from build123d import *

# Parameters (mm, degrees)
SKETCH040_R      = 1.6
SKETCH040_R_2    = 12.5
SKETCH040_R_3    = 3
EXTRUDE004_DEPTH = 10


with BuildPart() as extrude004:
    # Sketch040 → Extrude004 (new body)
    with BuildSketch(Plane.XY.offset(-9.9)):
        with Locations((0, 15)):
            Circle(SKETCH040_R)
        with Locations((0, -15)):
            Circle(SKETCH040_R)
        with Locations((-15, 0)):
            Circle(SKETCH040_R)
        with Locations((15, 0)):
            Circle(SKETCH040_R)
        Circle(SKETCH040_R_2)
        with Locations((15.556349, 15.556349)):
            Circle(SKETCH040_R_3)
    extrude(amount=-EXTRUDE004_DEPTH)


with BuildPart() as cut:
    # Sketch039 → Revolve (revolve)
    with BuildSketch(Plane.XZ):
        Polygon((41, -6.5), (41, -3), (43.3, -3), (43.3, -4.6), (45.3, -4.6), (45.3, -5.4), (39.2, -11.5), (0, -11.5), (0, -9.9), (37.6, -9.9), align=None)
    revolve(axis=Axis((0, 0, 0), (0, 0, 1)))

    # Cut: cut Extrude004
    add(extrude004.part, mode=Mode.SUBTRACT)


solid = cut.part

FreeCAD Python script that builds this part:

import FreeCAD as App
import Part
import Sketcher

V = App.Vector
Q = App.Units.Quantity

doc = App.newDocument("Part")
body = doc.addObject("PartDesign::Body", "Body")
body.AllowCompound = True

# Sketch on XY plane
sketch1 = doc.addObject("Sketcher::SketchObject", "Sketch")
body.addObject(sketch1)
sketch1.AttachmentSupport = (doc.XY_Plane, [""])
sketch1.MapMode = "FlatFace"
sketch1.AttachmentOffset = App.Placement(V(0, 0, -9.9), App.Rotation())
sketch1.addGeometry([
    Part.Circle(V(0, 15, 0), V(0, 0, 1), 1.6),  # 0
    Part.Circle(V(0, -15, 0), V(0, 0, 1), 1.6),  # 1
    Part.Circle(V(-15, 0, 0), V(0, 0, 1), 1.6),  # 2
    Part.Circle(V(15, 0, 0), V(0, 0, 1), 1.6),  # 3
    Part.Circle(V(0, 0, 0), V(0, 0, 1), 12.5),  # 4
    Part.Circle(V(15.6, 15.6, 0), V(0, 0, 1), 3),  # 5
], False)
sketch1.addConstraint([
    Sketcher.Constraint("Coincident", 4, 3, -1, 1),
    Sketcher.Constraint("Equal", 0, 1),
    Sketcher.Constraint("Equal", 1, 2),
    Sketcher.Constraint("Equal", 2, 3),
    Sketcher.Constraint("Symmetric", 0, 3, 1, 3, -1, 1),
    Sketcher.Constraint("Symmetric", 2, 3, 3, 3, -1, 1),
    Sketcher.Constraint("PointOnObject", 0, 3, -2),
    Sketcher.Constraint("PointOnObject", 2, 3, -1),
    Sketcher.Constraint("Diameter", 4, 25.0),
    Sketcher.Constraint("Diameter", 5, 6.0),
    Sketcher.Constraint("Diameter", 0, 3.2),
    Sketcher.Constraint("DistanceY", -1, 1, 0, 3, 15.0),
    Sketcher.Constraint("DistanceX", 2, 3, -1, 1, 15.0),
    Sketcher.Constraint("DistanceX", -1, 1, 5, 3, 15.556349),
    Sketcher.Constraint("DistanceY", -1, 1, 5, 3, 15.556349),
])
pad1 = doc.addObject("PartDesign::Pad", "Pad")
body.addObject(pad1)
pad1.Profile = sketch1
pad1.Length = 10
pad1.Reversed = True
body2 = doc.addObject("PartDesign::Body", "Body001")

# Sketch on XZ plane
sketch2 = doc.addObject("Sketcher::SketchObject", "Sketch001")
body2.addObject(sketch2)
sketch2.AttachmentSupport = (doc.getObject("XZ_Plane001"), [""])
sketch2.MapMode = "FlatFace"
sketch2.addGeometry([
    Part.LineSegment(V(41, -3, 0), V(41, -6.5, 0)),  # 0
    Part.LineSegment(V(41, -6.5, 0), V(37.6, -9.9, 0)),  # 1
    Part.LineSegment(V(37.6, -9.9, 0), V(0, -9.9, 0)),  # 2
    Part.LineSegment(V(0, -9.9, 0), V(0, -11.5, 0)),  # 3
    Part.LineSegment(V(0, -11.5, 0), V(39.2, -11.5, 0)),  # 4
    Part.LineSegment(V(39.2, -11.5, 0), V(45.3, -5.4, 0)),  # 5
    Part.LineSegment(V(45.3, -5.4, 0), V(45.3, -4.6, 0)),  # 6
    Part.LineSegment(V(45.3, -4.6, 0), V(43.3, -4.6, 0)),  # 7
    Part.LineSegment(V(43.3, -4.6, 0), V(43.3, -3, 0)),  # 8
    Part.LineSegment(V(43.3, -3, 0), V(41, -3, 0)),  # 9
], False)
sketch2.addConstraint([
    Sketcher.Constraint("Coincident", 0, 2, 1, 1),
    Sketcher.Constraint("Coincident", 1, 2, 2, 1),
    Sketcher.Constraint("Coincident", 2, 2, 3, 1),
    Sketcher.Constraint("Coincident", 3, 2, 4, 1),
    Sketcher.Constraint("Coincident", 4, 2, 5, 1),
    Sketcher.Constraint("Coincident", 5, 2, 6, 1),
    Sketcher.Constraint("Coincident", 6, 2, 7, 1),
    Sketcher.Constraint("Coincident", 7, 2, 8, 1),
    Sketcher.Constraint("Coincident", 8, 2, 9, 1),
    Sketcher.Constraint("Coincident", 9, 2, 0, 1),
    Sketcher.Constraint("Vertical", 0),
    Sketcher.Constraint("Horizontal", 2),
    Sketcher.Constraint("Vertical", 3),
    Sketcher.Constraint("Horizontal", 4),
    Sketcher.Constraint("Vertical", 6),
    Sketcher.Constraint("Horizontal", 7),
    Sketcher.Constraint("Vertical", 8),
    Sketcher.Constraint("Horizontal", 9),
    Sketcher.Constraint("PointOnObject", 2, 2, -2),
    Sketcher.Constraint("Parallel", 1, 5),
    Sketcher.Constraint("Equal", 3, 8),
    Sketcher.Constraint("DistanceX", 7, 2, 7, 1, 2.0),
    Sketcher.Constraint("Angle", 1, Q("-135 deg")),
    Sketcher.Constraint("DistanceX", 2, 2, 2, 1, 37.6),
    Sketcher.Constraint("DistanceX", 4, 1, 4, 2, 39.2),
    Sketcher.Constraint("DistanceX", 9, 2, 9, 1, 2.3),
    Sketcher.Constraint("DistanceY", 0, 2, 0, 1, 3.5),
    Sketcher.Constraint("DistanceY", 3, 2, 3, 1, 1.6),
    Sketcher.Constraint("DistanceX", -1, 1, 0, 2, 41.0),
    Sketcher.Constraint("DistanceY", 8, 2, -1, 1, 3.0),
])
revolution = doc.addObject("PartDesign::Revolution", "Revolution")
body2.addObject(revolution)
revolution.Profile = sketch2
revolution.ReferenceAxis = (sketch2, ["V_Axis"])
revolution.Angle = 360
doc.recompute()

boolean = doc.addObject("PartDesign::Boolean", "Boolean")
body2.addObject(boolean)
boolean.Type = "Cut"
boolean.addObjects([body])

doc.recompute()
